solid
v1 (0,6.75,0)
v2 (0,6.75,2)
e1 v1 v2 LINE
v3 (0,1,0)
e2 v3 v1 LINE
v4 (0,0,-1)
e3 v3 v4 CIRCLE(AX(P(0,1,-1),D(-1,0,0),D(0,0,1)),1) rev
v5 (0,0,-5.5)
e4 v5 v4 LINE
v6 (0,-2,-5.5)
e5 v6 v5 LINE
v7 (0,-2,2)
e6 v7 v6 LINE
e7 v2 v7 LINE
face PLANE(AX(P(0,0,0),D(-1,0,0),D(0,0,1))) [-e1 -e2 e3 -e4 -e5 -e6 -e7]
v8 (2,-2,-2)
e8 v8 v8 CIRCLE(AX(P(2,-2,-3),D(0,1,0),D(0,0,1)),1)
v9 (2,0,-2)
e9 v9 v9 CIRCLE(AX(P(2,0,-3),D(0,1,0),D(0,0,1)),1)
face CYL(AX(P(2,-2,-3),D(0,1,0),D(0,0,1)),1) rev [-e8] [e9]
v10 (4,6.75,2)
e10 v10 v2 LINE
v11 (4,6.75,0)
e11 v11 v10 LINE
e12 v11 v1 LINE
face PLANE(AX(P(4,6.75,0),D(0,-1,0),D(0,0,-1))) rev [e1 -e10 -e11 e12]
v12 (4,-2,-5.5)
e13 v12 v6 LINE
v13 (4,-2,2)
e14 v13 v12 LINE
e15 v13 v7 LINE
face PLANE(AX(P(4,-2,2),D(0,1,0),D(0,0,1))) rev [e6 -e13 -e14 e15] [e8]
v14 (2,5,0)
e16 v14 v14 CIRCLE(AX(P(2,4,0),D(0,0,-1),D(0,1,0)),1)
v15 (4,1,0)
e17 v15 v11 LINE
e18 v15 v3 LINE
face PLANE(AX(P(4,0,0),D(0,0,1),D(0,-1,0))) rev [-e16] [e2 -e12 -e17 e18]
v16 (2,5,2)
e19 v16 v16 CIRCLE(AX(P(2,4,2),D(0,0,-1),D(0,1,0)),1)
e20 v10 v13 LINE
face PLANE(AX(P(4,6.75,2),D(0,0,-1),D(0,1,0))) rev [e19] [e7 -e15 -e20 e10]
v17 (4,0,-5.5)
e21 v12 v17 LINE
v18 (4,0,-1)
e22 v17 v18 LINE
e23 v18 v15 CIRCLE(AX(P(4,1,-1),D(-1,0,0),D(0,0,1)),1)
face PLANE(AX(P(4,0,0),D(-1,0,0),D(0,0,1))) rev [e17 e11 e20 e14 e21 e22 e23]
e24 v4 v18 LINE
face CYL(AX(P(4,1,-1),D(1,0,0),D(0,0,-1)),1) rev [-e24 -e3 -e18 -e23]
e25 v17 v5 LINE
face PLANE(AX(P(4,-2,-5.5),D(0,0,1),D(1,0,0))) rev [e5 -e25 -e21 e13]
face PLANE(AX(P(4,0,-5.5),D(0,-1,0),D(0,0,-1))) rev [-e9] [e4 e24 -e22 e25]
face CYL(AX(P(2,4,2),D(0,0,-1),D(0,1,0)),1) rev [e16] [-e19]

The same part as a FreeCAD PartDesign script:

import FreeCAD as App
import Part
import Sketcher
Q = App.Units.Quantity


def edges_at(feature, points):
    """Names of the edges that pass closest to the given points."""
    edges = feature.Shape.Edges
    near = lambda p: min(range(len(edges)), key=lambda i: edges[i].distToShape(Part.Vertex(*p))[0])
    return sorted({f"Edge{near(p) + 1}" for p in points})

doc = App.newDocument("Part")
body = doc.addObject("PartDesign::Body", "Body")

sketch1 = body.newObject("Sketcher::SketchObject", "Sketch")
sketch1.AttachmentSupport = (doc.getObject("YZ_Plane"), [""])
sketch1.MapMode = "FlatFace"
sketch1.addGeometry([
    Part.LineSegment(App.Vector(0, 0, 0), App.Vector(6.8, 0, 0)),
    Part.LineSegment(App.Vector(6.8, 0, 0), App.Vector(6.8, 2, 0)),
    Part.LineSegment(App.Vector(6.8, 2, 0), App.Vector(-2, 2, 0)),
    Part.LineSegment(App.Vector(-2, 2, 0), App.Vector(-2, -5.5, 0)),
    Part.LineSegment(App.Vector(-2, -5.5, 0), App.Vector(0, -5.5, 0)),
    Part.LineSegment(App.Vector(0, -5.5, 0), App.Vector(0, 0, 0)),
], False)
sketch1.addConstraint([
    Sketcher.Constraint("Coincident", 0, 2, 1, 1),
    Sketcher.Constraint("Coincident", 1, 2, 2, 1),
    Sketcher.Constraint("Coincident", 2, 2, 3, 1),
    Sketcher.Constraint("Coincident", 3, 2, 4, 1),
    Sketcher.Constraint("Coincident", 4, 2, 5, 1),
    Sketcher.Constraint("Coincident", 5, 2, 0, 1),
    Sketcher.Constraint("Horizontal", 0),
    Sketcher.Constraint("Vertical", 1),
    Sketcher.Constraint("Horizontal", 2),
    Sketcher.Constraint("Vertical", 3),
    Sketcher.Constraint("Horizontal", 4),
    Sketcher.Constraint("Vertical", 5),
    Sketcher.Constraint("Coincident", 5, 2, -1, 1),
    Sketcher.Constraint("Equal", 4, 1),
    Sketcher.Constraint("DistanceX", 4, 1, 4, 2, Q("2 mm")),
    Sketcher.Constraint("DistanceY", 3, 2, 3, 1, Q("7.5 mm")),
    Sketcher.Constraint("DistanceX", 0, 1, 0, 2, Q("6.75 mm")),
])
pad1 = body.newObject("PartDesign::Pad", "Pad")
pad1.Profile = sketch1
pad1.Length = 4

sketch2 = body.newObject("Sketcher::SketchObject", "Sketch001")
sketch2.AttachmentSupport = (doc.getObject("XY_Plane"), [""])
sketch2.MapMode = "FlatFace"
sketch2.addGeometry(Part.Circle(App.Vector(2, 4, 0), App.Vector(0, 0, 1), 1), False)
sketch2.addConstraint([
    Sketcher.Constraint("Diameter", 0, Q("2 mm")),
    Sketcher.Constraint("DistanceX", -1, 1, 0, 3, Q("2 mm")),
    Sketcher.Constraint("DistanceY", -1, 1, 0, 3, Q("4 mm")),
])
pocket1 = body.newObject("PartDesign::Pocket", "Pocket")
pocket1.Profile = sketch2
pocket1.Type = "ThroughAll"
pocket1.Reversed = True

sketch3 = body.newObject("Sketcher::SketchObject", "Sketch002")
sketch3.AttachmentSupport = (doc.getObject("XZ_Plane"), [""])
sketch3.MapMode = "FlatFace"
sketch3.addGeometry(Part.Circle(App.Vector(2, -3, 0), App.Vector(0, 0, 1), 1), False)
sketch3.addConstraint([
    Sketcher.Constraint("Diameter", 0, Q("2 mm")),
    Sketcher.Constraint("DistanceX", -1, 1, 0, 3, Q("2 mm")),
    Sketcher.Constraint("DistanceY", 0, 3, -1, 1, Q("3 mm")),
])
pocket2 = body.newObject("PartDesign::Pocket", "Pocket001")
pocket2.Profile = sketch3
pocket2.Type = "ThroughAll"
pocket2.Reversed = True
doc.recompute()

fillet = body.newObject("PartDesign::Fillet", "Fillet")
fillet.Base = (pocket2, edges_at(pocket2, [(2, 0, 0)]))
fillet.Radius = 1

doc.recompute()
